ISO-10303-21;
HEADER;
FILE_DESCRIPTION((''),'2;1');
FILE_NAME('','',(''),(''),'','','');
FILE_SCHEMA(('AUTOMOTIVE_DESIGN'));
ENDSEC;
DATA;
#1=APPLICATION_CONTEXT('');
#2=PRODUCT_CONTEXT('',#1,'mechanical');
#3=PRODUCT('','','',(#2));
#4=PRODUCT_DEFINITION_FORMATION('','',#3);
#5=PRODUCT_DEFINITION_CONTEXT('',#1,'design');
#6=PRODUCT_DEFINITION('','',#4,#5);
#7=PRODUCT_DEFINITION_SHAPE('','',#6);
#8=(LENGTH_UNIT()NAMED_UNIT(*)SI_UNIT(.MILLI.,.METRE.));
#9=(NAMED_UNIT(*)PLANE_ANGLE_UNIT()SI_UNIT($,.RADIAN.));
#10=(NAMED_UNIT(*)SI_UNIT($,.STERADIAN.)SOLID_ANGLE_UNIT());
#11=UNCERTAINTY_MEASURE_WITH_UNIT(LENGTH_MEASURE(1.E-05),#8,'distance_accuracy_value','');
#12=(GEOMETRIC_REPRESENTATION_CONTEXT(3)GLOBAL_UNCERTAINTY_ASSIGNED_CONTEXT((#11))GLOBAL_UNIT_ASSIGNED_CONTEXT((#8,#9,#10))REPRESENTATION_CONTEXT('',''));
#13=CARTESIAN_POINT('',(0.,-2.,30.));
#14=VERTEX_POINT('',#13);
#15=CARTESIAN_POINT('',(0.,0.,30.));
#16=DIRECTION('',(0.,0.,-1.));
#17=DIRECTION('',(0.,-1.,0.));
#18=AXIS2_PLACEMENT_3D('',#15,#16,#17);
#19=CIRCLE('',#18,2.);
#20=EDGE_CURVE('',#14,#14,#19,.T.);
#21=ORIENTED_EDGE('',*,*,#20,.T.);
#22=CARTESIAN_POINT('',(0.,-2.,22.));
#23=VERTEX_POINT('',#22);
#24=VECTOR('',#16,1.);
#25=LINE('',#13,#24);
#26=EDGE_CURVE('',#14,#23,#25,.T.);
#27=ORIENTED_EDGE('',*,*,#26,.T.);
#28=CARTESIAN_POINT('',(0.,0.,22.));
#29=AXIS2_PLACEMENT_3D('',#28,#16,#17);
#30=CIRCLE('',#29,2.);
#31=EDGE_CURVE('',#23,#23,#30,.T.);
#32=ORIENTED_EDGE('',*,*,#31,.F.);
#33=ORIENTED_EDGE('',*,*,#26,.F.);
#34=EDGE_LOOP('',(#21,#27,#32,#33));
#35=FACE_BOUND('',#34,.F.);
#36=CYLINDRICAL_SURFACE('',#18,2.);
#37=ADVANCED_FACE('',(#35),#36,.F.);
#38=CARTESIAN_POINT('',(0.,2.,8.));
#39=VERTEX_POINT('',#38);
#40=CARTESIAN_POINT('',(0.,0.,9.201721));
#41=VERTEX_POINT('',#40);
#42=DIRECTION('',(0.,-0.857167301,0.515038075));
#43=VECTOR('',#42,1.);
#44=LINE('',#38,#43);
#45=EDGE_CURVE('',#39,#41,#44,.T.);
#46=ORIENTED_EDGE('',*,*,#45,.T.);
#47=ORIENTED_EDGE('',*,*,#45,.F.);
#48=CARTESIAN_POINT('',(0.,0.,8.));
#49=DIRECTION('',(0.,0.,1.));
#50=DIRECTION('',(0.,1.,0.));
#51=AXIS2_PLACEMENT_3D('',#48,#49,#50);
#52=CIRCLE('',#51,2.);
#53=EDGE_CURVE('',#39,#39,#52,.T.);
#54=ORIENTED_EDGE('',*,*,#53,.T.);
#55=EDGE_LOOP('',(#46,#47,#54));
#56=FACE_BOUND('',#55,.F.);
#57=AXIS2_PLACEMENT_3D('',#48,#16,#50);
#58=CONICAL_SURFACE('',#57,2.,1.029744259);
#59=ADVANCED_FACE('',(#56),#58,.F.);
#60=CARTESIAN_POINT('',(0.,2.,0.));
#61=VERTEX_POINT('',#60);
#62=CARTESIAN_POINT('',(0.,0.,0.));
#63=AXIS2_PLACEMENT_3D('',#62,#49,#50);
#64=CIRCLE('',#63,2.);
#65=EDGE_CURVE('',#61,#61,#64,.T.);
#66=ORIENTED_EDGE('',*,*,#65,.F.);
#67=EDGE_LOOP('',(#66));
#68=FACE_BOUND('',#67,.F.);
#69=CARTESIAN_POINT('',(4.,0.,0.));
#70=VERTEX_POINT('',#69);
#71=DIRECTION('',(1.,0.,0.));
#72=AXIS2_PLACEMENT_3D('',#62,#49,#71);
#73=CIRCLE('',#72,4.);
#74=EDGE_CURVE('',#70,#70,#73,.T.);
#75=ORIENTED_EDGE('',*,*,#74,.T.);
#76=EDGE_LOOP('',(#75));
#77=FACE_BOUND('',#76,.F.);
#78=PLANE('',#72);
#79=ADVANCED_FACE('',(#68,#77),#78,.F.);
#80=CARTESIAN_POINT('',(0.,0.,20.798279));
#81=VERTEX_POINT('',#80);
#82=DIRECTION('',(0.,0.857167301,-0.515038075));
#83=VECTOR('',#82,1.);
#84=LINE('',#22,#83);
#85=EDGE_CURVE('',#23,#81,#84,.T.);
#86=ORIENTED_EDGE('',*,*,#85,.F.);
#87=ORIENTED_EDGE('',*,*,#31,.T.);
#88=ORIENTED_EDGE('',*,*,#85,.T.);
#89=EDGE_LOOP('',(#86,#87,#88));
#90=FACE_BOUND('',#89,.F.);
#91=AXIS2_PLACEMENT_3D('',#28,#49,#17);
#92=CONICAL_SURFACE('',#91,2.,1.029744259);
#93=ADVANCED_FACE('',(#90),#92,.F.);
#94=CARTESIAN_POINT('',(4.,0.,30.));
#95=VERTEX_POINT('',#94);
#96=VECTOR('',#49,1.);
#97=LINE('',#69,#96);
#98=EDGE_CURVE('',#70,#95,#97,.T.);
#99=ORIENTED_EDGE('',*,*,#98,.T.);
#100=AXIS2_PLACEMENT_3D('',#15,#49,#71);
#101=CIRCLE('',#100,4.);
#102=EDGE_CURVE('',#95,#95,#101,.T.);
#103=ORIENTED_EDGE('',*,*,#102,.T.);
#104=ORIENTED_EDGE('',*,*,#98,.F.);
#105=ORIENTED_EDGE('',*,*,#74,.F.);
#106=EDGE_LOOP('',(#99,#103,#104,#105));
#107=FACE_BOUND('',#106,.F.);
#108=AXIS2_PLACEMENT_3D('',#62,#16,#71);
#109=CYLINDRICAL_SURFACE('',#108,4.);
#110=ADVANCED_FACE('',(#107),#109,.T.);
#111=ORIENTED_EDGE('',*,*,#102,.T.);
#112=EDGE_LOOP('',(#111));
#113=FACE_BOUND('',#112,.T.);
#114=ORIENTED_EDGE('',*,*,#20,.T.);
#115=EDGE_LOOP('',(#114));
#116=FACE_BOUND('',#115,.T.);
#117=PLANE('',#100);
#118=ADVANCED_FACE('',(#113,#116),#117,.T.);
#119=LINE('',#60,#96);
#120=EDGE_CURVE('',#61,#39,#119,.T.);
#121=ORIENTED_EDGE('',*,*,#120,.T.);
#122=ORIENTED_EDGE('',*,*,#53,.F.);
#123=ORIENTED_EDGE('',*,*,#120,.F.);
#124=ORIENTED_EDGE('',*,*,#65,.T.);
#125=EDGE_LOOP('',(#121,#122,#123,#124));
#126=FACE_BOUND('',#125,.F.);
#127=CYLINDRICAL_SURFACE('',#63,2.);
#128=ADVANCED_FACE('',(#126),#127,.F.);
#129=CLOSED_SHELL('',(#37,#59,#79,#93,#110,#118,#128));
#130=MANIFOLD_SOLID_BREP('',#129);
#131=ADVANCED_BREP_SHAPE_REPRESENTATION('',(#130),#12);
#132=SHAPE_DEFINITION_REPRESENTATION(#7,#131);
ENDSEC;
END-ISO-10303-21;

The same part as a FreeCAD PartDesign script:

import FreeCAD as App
import Part
import Sketcher

doc = App.newDocument("Part")
body = doc.addObject("PartDesign::Body", "Body")

# Sketch on XY plane
sketch1 = body.newObject("Sketcher::SketchObject", "Sketch")
sketch1.AttachmentSupport = (doc.getObject("XY_Plane"), [""])
sketch1.MapMode = "FlatFace"
sketch1.addGeometry(Part.Circle(App.Vector(0, 0, 0), App.Vector(0, 0, 1), 4), False)
sketch1.addConstraint([
    Sketcher.Constraint("Coincident", 0, 3, -1, 1),
    Sketcher.Constraint("Diameter", 0, 8.0),
])
pad1 = body.newObject("PartDesign::Pad", "Pad")
pad1.Profile = sketch1
pad1.Length = 30

# Sketch on XY plane
sketch2 = body.newObject("Sketcher::SketchObject", "Sketch001")
sketch2.AttachmentSupport = (doc.getObject("XY_Plane"), [""])
sketch2.MapMode = "FlatFace"
sketch2.addGeometry(Part.Circle(App.Vector(0, 0, 0), App.Vector(0, 0, 1), 2), False)
sketch2.addConstraint([
    Sketcher.Constraint("Coincident", 0, 3, -1, 1),
    Sketcher.Constraint("Diameter", 0, 4.0),
])
doc.recompute()
hole = body.newObject("PartDesign::Hole", "Hole")
hole.Profile = sketch2
hole.ThreadType = "None"
hole.Diameter = 4
hole.DepthType = "Dimension"
hole.Depth = 8
hole.DrillPoint = "Angled"
hole.DrillPointAngle = 118
hole.Reversed = True

# Sketch on XY plane
sketch3 = body.newObject("Sketcher::SketchObject", "Sketch002")
sketch3.AttachmentSupport = (doc.getObject("XY_Plane"), [""])
sketch3.MapMode = "FlatFace"
sketch3.AttachmentOffset = App.Placement(App.Vector(0, 0, 30), App.Rotation())
sketch3.addGeometry(Part.Circle(App.Vector(0, 0, 0), App.Vector(0, 0, 1), 2), False)
sketch3.addConstraint([
    Sketcher.Constraint("Coincident", 0, 3, -1, 1),
    Sketcher.Constraint("Diameter", 0, 4.0),
])
doc.recompute()
hole2 = body.newObject("PartDesign::Hole", "Hole001")
hole2.Profile = sketch3
hole2.ThreadType = "None"
hole2.Diameter = 4
hole2.DepthType = "Dimension"
hole2.Depth = 8
hole2.DrillPoint = "Angled"
hole2.DrillPointAngle = 118

doc.recompute()
